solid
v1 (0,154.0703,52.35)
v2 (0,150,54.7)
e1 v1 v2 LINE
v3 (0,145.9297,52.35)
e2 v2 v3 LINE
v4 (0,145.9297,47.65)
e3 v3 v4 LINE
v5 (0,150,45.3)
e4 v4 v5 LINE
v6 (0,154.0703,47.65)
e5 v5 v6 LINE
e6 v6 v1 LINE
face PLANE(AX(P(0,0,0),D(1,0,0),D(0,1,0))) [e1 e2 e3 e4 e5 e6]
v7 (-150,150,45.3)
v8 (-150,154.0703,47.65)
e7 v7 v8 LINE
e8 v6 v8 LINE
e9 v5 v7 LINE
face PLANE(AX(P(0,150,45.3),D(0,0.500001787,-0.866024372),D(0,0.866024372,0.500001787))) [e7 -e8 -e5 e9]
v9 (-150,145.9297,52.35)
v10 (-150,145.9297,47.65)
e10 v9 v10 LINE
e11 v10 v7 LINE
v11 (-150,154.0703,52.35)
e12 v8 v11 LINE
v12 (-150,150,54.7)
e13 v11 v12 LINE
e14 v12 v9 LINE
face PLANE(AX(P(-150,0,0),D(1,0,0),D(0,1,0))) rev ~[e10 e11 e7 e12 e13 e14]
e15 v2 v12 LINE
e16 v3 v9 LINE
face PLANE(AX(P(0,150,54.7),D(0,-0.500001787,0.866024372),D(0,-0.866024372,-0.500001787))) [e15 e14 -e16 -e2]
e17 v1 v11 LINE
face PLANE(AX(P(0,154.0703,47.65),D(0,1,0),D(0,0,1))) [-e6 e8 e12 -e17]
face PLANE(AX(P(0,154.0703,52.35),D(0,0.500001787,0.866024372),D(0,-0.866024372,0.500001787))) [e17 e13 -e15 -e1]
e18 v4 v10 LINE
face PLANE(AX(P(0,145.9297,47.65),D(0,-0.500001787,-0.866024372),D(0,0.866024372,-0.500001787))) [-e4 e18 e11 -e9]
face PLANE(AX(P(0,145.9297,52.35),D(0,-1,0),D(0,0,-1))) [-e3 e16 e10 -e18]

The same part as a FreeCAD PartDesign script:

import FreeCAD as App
import Part
import Sketcher
Q = App.Units.Quantity


def add_polygon(sketch, points):
    """Adds a closed chain of lines whose ends are joined by coincident constraints."""
    first, n = sketch.GeometryCount, len(points)
    for a, b in zip(points, points[1:] + points[:1]):
        sketch.addGeometry(Part.LineSegment(App.Vector(*a, 0), App.Vector(*b, 0)), False)
    for i in range(n):
        sketch.addConstraint(Sketcher.Constraint("Coincident", first + i, 2, first + (i + 1) % n, 1))

doc = App.newDocument("Part")
body = doc.addObject("PartDesign::Body", "Body")

# Sketch on YZ plane
sketch1 = body.newObject("Sketcher::SketchObject", "Sketch")
sketch1.AttachmentSupport = (doc.getObject("YZ_Plane"), [""])
sketch1.MapMode = "FlatFace"
add_polygon(sketch1, [(145.9297, 47.65), (150, 45.3), (154.0703, 47.65), (154.0703, 52.35), (150, 54.7), (145.9297, 52.35)])  # lines 0-5
sketch1.addConstraint([
    Sketcher.Constraint("Vertical", 2),
    Sketcher.Constraint("Vertical", 5),
    Sketcher.Constraint("Parallel", 0, 3),
    Sketcher.Constraint("Parallel", 1, 4),
    Sketcher.Constraint("Horizontal", 2, 2, 4, 2),
    Sketcher.Constraint("Horizontal", 1, 2, 5, 2),
    Sketcher.Constraint("Vertical", 0, 2, 3, 2),
    Sketcher.Constraint("DistanceY", 2, 1, 2, 2, 4.7),
    Sketcher.Constraint("Distance", 0, 4.7),
    Sketcher.Constraint("Angle", 0, Q("-30 deg")),
    Sketcher.Constraint("DistanceX", -1, 1, 0, 2, 150.0),
    Sketcher.Constraint("DistanceY", -1, 1, 0, 2, 45.3),
])
pad1 = body.newObject("PartDesign::Pad", "Pad")
pad1.Profile = sketch1
pad1.Length = 150
pad1.Reversed = True

doc.recompute()
